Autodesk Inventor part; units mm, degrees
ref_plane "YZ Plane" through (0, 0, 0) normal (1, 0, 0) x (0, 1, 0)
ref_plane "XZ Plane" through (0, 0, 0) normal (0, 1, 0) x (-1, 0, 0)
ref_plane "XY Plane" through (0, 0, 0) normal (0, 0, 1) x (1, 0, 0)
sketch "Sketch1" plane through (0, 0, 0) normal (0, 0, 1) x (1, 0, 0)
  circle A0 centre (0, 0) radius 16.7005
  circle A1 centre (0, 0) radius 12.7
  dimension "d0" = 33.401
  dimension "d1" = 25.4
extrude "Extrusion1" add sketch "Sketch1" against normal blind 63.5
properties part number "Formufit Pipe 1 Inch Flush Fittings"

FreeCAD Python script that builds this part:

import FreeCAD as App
import Part
import Sketcher
from FreeCAD import Vector
Q = App.Units.Quantity

doc = App.newDocument("Part")
body = doc.addObject("PartDesign::Body", "Body")

sketch1 = doc.addObject("Sketcher::SketchObject", "Sketch")
body.addObject(sketch1)
sketch1.AttachmentSupport = (doc.XY_Plane, [""])
sketch1.MapMode = "FlatFace"
sketch1.addGeometry([
    Part.Circle(Vector(0, 0, 0), Vector(0, 0, 1), 17),
    Part.Circle(Vector(0, 0, 0), Vector(0, 0, 1), 13),
], False)
sketch1.addConstraint([
    Sketcher.Constraint("Coincident", 0, 3, -1, 1),
    Sketcher.Constraint("Coincident", 1, 3, -1, 1),
    Sketcher.Constraint("Diameter", 1, Q("1 in")),
    Sketcher.Constraint("Diameter", 0, Q("1.315 in")),
])
pad1 = doc.addObject("PartDesign::Pad", "Pad")
body.addObject(pad1)
pad1.Profile = sketch1
pad1.Length = Q("2.5 in")
pad1.Reversed = True

doc.recompute()
